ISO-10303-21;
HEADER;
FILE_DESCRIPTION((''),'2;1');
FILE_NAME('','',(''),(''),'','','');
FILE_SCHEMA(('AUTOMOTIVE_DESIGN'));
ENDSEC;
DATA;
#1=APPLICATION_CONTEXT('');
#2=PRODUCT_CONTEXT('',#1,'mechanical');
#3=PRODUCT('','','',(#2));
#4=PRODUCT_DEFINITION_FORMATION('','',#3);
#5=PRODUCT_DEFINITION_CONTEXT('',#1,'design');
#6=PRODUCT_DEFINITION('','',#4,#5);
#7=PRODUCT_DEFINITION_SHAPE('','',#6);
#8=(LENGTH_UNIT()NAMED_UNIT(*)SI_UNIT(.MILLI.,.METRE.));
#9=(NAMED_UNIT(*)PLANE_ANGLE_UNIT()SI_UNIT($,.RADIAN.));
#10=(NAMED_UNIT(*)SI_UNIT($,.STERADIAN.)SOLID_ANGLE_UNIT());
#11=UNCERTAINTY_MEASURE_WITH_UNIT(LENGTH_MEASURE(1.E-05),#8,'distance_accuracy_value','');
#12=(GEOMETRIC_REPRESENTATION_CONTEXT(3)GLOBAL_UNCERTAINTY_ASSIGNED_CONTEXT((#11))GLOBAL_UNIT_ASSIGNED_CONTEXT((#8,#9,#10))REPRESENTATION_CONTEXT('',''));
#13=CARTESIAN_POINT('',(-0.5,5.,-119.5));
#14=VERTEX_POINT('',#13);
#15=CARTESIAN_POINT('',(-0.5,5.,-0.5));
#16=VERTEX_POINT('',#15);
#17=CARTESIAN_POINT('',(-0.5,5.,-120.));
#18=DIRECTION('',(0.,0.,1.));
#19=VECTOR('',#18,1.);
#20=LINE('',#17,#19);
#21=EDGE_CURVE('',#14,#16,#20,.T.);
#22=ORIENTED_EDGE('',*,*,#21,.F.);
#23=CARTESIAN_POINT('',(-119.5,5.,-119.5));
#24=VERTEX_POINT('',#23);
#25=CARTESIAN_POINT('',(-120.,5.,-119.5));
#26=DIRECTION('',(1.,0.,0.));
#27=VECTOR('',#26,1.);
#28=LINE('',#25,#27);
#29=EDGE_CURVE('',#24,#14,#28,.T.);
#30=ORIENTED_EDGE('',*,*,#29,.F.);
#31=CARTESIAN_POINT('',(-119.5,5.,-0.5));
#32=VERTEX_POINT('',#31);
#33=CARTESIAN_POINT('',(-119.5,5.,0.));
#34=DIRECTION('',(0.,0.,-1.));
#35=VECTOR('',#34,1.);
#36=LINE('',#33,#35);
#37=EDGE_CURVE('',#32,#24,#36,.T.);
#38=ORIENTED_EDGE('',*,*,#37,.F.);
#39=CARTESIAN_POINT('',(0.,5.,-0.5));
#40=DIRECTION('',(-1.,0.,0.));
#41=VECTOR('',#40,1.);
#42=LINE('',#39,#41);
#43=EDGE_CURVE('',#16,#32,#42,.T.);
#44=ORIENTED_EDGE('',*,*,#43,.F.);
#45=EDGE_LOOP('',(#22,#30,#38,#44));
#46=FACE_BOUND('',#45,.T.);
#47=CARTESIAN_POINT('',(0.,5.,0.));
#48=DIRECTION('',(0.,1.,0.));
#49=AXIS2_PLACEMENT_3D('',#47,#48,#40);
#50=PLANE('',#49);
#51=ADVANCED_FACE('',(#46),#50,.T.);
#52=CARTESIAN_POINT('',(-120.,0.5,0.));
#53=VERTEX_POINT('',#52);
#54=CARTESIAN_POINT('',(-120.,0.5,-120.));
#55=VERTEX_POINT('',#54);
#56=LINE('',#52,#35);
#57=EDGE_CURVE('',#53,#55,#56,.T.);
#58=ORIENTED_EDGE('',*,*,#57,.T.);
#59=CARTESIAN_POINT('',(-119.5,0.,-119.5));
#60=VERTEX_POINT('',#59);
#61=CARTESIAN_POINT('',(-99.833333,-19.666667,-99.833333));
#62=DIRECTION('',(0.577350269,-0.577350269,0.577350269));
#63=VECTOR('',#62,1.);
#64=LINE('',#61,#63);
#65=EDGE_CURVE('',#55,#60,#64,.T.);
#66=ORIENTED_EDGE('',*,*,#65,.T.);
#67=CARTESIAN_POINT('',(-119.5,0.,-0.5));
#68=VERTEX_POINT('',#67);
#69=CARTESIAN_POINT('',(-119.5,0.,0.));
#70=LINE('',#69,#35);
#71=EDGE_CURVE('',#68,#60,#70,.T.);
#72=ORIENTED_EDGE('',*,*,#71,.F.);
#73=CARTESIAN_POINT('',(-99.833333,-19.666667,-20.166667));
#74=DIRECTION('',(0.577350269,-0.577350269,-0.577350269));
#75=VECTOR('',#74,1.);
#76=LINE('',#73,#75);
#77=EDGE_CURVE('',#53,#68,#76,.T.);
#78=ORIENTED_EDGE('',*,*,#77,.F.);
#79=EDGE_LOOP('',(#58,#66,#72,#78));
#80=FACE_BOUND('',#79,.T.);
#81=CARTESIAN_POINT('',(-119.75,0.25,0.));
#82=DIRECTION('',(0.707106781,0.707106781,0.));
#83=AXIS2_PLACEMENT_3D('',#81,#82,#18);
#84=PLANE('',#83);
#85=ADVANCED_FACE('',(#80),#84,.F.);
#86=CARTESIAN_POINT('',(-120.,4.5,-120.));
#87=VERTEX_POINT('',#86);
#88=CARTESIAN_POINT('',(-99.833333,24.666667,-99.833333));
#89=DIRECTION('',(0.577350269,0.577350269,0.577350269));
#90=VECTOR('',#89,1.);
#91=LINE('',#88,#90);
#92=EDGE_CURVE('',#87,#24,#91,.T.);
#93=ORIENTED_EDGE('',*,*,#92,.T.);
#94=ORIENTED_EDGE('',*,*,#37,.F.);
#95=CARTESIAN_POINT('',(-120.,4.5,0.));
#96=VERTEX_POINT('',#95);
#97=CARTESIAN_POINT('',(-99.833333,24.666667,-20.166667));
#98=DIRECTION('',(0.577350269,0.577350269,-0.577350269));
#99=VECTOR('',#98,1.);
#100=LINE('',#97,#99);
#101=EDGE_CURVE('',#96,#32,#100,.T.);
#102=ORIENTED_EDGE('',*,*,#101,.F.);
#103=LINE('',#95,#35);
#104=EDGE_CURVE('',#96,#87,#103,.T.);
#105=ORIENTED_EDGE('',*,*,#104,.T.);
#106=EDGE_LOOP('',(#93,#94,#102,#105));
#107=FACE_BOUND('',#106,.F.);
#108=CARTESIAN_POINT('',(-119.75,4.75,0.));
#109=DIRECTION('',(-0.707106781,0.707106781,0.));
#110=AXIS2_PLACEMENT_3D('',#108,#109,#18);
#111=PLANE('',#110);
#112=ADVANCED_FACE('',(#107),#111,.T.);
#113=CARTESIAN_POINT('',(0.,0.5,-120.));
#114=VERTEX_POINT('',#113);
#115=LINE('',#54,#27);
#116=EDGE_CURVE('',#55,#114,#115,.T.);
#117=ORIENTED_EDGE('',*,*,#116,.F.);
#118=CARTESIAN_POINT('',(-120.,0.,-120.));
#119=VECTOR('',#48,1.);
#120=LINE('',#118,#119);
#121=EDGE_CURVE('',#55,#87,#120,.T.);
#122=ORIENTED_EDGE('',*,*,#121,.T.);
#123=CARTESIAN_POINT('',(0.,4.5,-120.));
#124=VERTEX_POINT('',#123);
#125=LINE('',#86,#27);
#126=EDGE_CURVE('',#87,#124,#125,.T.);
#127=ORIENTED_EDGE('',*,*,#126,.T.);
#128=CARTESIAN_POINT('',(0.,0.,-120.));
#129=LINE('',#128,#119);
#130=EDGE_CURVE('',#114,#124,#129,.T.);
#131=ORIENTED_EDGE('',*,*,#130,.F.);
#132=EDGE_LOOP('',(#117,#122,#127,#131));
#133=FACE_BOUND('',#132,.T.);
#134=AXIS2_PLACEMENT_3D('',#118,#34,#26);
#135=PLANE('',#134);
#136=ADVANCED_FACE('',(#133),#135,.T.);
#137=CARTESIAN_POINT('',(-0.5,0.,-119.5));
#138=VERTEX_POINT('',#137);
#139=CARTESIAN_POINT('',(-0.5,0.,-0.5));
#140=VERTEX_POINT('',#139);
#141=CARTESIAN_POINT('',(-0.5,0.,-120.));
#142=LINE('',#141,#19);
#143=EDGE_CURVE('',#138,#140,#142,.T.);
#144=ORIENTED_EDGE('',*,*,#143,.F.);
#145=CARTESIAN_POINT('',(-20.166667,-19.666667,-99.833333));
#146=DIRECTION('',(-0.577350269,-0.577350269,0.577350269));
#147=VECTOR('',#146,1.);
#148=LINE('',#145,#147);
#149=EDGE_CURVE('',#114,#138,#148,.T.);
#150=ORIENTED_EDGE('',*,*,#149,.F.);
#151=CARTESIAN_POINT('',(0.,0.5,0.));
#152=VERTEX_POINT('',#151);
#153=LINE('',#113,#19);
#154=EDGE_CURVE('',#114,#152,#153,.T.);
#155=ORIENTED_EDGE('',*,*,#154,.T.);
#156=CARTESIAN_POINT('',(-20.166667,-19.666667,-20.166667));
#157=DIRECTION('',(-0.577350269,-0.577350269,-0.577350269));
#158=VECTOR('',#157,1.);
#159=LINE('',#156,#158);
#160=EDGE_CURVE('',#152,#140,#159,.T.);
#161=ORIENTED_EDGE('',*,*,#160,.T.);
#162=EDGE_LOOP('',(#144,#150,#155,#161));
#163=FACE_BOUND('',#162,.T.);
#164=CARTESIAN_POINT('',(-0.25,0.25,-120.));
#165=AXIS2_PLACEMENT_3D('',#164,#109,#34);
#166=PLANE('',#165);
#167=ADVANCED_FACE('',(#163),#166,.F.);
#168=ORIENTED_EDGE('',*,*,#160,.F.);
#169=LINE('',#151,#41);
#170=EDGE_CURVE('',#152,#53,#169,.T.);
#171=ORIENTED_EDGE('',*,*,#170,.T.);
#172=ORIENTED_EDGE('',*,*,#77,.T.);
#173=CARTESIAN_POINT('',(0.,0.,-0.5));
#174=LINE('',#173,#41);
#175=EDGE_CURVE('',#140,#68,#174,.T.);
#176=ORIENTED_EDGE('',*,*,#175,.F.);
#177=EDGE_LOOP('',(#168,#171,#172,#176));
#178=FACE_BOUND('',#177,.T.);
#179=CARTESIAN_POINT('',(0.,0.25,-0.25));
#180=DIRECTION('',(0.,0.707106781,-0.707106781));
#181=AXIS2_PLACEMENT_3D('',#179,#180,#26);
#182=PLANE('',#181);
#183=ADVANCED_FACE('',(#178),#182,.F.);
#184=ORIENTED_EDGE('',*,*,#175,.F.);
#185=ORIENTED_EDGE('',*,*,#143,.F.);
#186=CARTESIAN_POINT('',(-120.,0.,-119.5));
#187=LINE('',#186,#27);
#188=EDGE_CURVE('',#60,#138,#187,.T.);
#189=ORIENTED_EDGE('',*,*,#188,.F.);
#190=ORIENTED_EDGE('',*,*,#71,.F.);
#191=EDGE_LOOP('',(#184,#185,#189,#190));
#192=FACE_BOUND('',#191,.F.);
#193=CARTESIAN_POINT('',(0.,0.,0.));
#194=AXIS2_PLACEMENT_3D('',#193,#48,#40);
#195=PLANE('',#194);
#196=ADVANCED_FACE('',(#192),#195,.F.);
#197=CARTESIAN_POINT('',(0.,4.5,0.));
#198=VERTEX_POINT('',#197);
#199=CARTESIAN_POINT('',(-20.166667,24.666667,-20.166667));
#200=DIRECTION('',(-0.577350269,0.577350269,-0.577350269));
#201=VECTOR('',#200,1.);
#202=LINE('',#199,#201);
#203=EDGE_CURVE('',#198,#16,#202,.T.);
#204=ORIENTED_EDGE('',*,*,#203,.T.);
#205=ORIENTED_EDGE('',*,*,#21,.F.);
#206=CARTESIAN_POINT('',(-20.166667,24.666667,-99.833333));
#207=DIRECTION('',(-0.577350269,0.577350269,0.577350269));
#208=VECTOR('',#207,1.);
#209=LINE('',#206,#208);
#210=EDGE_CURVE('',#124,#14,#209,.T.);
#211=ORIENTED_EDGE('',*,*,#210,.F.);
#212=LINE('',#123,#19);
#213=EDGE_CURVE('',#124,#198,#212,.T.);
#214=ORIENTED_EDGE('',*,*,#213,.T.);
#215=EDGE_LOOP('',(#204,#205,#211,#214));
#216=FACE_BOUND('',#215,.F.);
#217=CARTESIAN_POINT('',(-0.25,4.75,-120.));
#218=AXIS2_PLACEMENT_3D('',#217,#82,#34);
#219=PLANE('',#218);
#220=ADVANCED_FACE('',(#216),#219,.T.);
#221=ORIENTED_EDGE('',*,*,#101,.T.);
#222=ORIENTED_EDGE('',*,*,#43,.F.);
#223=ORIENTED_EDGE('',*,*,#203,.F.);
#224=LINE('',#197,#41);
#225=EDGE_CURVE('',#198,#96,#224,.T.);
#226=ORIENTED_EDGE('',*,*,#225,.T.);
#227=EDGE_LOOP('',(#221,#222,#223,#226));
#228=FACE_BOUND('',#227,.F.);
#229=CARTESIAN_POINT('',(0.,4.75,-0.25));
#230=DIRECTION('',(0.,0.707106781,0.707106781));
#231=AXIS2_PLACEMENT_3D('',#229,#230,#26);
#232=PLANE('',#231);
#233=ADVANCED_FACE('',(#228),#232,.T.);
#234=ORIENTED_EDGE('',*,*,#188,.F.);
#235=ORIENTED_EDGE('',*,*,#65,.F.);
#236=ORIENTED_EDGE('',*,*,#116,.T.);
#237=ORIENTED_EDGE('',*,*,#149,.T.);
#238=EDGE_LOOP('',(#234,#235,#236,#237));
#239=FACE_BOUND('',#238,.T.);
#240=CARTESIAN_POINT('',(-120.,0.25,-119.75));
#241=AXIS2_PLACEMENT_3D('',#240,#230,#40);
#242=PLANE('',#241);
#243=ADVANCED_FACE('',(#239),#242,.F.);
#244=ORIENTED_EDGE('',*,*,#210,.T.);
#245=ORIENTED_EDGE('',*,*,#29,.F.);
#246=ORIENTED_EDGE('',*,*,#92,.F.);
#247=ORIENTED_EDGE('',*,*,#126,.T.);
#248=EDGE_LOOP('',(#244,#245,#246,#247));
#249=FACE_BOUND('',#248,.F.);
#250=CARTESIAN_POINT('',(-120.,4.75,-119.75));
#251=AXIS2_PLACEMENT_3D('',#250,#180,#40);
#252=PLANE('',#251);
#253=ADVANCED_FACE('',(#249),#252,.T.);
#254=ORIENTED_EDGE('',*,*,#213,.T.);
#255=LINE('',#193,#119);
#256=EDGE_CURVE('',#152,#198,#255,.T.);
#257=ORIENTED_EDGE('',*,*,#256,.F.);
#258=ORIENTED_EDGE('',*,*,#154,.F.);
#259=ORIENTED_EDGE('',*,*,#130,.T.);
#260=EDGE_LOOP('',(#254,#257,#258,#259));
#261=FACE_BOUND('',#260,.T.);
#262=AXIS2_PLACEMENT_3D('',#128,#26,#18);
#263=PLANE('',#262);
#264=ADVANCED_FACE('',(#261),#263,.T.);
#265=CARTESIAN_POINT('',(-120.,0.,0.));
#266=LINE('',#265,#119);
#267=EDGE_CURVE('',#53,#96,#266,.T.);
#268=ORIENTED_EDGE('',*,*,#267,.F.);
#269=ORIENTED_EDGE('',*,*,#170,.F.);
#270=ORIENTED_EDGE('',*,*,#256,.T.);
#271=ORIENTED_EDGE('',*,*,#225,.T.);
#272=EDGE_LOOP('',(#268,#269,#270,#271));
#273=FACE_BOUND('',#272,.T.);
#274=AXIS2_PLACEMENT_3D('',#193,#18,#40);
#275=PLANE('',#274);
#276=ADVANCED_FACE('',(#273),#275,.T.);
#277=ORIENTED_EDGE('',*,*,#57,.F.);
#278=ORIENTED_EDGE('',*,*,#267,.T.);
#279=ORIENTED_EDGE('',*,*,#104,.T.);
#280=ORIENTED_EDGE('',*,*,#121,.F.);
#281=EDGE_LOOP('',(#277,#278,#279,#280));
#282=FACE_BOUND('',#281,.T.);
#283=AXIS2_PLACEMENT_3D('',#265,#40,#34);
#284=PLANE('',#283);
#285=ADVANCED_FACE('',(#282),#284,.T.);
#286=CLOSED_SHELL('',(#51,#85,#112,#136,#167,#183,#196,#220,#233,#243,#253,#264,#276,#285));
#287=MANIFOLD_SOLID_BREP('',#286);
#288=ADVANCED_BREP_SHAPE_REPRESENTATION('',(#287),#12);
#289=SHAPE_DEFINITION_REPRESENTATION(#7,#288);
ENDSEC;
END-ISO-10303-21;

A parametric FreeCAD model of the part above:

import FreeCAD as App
import Part
import Sketcher


def edges_at(feature, points):
    """Names of the edges that pass closest to the given points."""
    edges = feature.Shape.Edges
    near = lambda p: min(range(len(edges)), key=lambda i: edges[i].distToShape(Part.Vertex(*p))[0])
    return sorted({f"Edge{near(p) + 1}" for p in points})

doc = App.newDocument("Part")
body = doc.addObject("PartDesign::Body", "Body")

# Sketch on XZ plane
sketch1 = body.newObject("Sketcher::SketchObject", "Sketch")
sketch1.AttachmentSupport = (doc.getObject("XZ_Plane"), [""])
sketch1.MapMode = "FlatFace"
sketch1.addGeometry(Part.LineSegment(App.Vector(-120, 0, 0), App.Vector(0, 0, 0)), False)
sketch1.addGeometry(Part.LineSegment(App.Vector(0, 0, 0), App.Vector(0, -120, 0)), False)
sketch1.addGeometry(Part.LineSegment(App.Vector(0, -120, 0), App.Vector(-120, -120, 0)), False)
sketch1.addGeometry(Part.LineSegment(App.Vector(-120, -120, 0), App.Vector(-120, 0, 0)), False)
sketch1.addConstraint(Sketcher.Constraint("Coincident", 0, 2, 1, 1))
sketch1.addConstraint(Sketcher.Constraint("Coincident", 1, 2, 2, 1))
sketch1.addConstraint(Sketcher.Constraint("Coincident", 2, 2, 3, 1))
sketch1.addConstraint(Sketcher.Constraint("Coincident", 3, 2, 0, 1))
sketch1.addConstraint(Sketcher.Constraint("Horizontal", 0))
sketch1.addConstraint(Sketcher.Constraint("Vertical", 1))
sketch1.addConstraint(Sketcher.Constraint("Horizontal", 2))
sketch1.addConstraint(Sketcher.Constraint("Vertical", 3))
sketch1.addConstraint(Sketcher.Constraint("Coincident", 0, 2, -1, 1))
sketch1.addConstraint(Sketcher.Constraint("Equal", 2, 1))
sketch1.addConstraint(Sketcher.Constraint("DistanceX", 0, 1, 0, 2, 120.0))
pad1 = body.newObject("PartDesign::Pad", "Pad")
pad1.Profile = sketch1
pad1.Length = 5
pad1.Reversed = True
doc.recompute()

chamfer = body.newObject("PartDesign::Chamfer", "Chamfer")
chamfer.Base = (pad1, edges_at(pad1, [
    (-60, 5, 0),
    (0, 5, -60),
    (-60, 5, -120),
    (-120, 5, -60),
    (0, 0, -60),
    (-60, 0, 0),
    (-60, 0, -120),
    (-120, 0, -60),
]))
chamfer.Size = 0.5

doc.recompute()
